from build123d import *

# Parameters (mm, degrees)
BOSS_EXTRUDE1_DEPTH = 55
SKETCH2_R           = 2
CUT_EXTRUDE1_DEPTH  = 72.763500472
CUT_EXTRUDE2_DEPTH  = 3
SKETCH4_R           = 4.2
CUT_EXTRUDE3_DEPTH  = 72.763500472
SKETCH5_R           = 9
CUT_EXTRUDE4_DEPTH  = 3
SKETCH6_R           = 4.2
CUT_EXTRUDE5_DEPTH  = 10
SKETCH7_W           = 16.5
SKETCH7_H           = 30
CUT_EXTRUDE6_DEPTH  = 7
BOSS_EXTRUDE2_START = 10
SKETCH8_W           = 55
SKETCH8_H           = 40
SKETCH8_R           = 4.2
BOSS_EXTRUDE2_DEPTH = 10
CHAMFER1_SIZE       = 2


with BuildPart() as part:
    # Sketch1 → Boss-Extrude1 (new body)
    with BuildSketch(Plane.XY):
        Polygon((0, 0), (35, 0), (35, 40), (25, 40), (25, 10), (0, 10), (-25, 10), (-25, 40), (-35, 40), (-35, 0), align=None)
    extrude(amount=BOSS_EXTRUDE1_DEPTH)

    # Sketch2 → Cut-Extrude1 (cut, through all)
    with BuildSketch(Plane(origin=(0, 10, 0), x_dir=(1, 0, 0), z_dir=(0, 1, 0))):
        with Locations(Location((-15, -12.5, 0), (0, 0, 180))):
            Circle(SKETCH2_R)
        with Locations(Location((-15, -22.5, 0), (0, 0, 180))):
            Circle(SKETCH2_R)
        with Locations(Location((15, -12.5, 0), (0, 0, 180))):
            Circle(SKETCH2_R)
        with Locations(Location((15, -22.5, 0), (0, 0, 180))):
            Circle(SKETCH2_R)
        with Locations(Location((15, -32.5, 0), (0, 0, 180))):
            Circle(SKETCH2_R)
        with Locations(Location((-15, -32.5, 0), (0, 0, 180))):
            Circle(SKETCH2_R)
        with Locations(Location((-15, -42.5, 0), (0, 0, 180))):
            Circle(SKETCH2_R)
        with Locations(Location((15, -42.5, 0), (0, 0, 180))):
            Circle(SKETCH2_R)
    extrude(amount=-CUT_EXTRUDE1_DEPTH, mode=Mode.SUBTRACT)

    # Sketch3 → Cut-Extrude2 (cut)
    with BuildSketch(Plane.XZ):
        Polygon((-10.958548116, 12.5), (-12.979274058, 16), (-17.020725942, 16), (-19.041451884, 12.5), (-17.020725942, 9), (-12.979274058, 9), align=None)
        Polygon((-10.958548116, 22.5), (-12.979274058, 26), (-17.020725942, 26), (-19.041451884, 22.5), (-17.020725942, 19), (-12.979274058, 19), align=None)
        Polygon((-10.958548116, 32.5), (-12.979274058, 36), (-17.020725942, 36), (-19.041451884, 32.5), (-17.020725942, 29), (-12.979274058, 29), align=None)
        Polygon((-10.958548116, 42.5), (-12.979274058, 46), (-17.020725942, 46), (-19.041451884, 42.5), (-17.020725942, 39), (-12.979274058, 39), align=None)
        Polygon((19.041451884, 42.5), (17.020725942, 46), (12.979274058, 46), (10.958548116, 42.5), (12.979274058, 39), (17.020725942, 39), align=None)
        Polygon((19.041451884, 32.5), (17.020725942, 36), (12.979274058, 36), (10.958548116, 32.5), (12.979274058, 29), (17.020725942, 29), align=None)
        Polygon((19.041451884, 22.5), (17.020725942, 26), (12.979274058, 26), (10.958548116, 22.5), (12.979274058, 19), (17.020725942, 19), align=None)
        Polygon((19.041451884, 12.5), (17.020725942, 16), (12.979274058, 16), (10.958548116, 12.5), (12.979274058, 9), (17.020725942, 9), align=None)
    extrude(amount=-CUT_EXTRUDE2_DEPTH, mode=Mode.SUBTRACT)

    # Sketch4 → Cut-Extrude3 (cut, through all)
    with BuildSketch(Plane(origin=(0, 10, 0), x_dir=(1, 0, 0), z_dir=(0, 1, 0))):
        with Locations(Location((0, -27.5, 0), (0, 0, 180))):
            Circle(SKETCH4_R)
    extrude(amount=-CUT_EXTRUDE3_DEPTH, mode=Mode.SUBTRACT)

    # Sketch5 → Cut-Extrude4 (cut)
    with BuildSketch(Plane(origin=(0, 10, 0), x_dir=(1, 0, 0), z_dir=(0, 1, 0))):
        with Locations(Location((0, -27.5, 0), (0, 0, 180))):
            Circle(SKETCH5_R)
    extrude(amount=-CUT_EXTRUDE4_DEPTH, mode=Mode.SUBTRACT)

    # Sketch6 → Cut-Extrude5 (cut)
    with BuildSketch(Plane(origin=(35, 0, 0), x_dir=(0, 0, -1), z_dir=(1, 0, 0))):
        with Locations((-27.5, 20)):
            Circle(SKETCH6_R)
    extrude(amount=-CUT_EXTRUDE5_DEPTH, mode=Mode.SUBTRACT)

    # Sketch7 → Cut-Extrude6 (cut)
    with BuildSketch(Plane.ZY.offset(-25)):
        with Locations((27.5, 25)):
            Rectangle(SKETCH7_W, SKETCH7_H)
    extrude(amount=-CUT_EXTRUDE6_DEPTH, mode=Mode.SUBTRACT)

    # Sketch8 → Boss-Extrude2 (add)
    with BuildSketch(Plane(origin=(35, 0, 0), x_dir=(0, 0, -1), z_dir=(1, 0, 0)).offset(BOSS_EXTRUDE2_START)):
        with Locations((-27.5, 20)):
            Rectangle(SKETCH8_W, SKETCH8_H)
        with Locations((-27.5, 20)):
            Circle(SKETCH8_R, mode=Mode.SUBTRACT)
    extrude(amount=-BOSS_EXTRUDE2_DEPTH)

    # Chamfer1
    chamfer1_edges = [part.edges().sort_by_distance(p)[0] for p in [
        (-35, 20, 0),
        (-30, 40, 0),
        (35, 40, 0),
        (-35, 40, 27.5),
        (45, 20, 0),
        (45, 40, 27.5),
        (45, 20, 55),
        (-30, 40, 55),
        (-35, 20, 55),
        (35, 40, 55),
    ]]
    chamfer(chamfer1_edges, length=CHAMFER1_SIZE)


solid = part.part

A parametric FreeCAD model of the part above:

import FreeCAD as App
import Part
import Sketcher
from FreeCAD import Vector
Q = App.Units.Quantity


def edges_at(feature, points):
    """Names of the edges that pass closest to the given points."""
    edges = feature.Shape.Edges
    near = lambda p: min(range(len(edges)), key=lambda i: edges[i].distToShape(Part.Vertex(*p))[0])
    return sorted({f"Edge{near(p) + 1}" for p in points})

doc = App.newDocument("Part")
body = doc.addObject("PartDesign::Body", "Body")

sketch1 = body.newObject("Sketcher::SketchObject", "Sketch")
sketch1.AttachmentSupport = (doc.getObject("XY_Plane"), [""])
sketch1.MapMode = "FlatFace"
sketch1.addGeometry(Part.LineSegment(Vector(35, 0, 0), Vector(35, 40, 0)), False)
sketch1.addGeometry(Part.LineSegment(Vector(35, 40, 0), Vector(25, 40, 0)), False)
sketch1.addGeometry(Part.LineSegment(Vector(25, 40, 0), Vector(25, 10, 0)), False)
sketch1.addGeometry(Part.LineSegment(Vector(25, 10, 0), Vector(-25, 10, 0)), False)
sketch1.addGeometry(Part.LineSegment(Vector(-25, 10, 0), Vector(-25, 40, 0)), False)
sketch1.addGeometry(Part.LineSegment(Vector(-25, 40, 0), Vector(-35, 40, 0)), False)
sketch1.addGeometry(Part.LineSegment(Vector(-35, 40, 0), Vector(-35, 0, 0)), False)
sketch1.addGeometry(Part.LineSegment(Vector(-35, 0, 0), Vector(35, 0, 0)), False)
sketch1.addConstraint(Sketcher.Constraint("Coincident", 0, 2, 1, 1))
sketch1.addConstraint(Sketcher.Constraint("Coincident", 1, 2, 2, 1))
sketch1.addConstraint(Sketcher.Constraint("Coincident", 2, 2, 3, 1))
sketch1.addConstraint(Sketcher.Constraint("Coincident", 3, 2, 4, 1))
sketch1.addConstraint(Sketcher.Constraint("Coincident", 4, 2, 5, 1))
sketch1.addConstraint(Sketcher.Constraint("Coincident", 5, 2, 6, 1))
sketch1.addConstraint(Sketcher.Constraint("Coincident", 6, 2, 7, 1))
sketch1.addConstraint(Sketcher.Constraint("Coincident", 7, 2, 0, 1))
sketch1.addConstraint(Sketcher.Constraint("Vertical", 0))
sketch1.addConstraint(Sketcher.Constraint("Horizontal", 1))
sketch1.addConstraint(Sketcher.Constraint("Vertical", 2))
sketch1.addConstraint(Sketcher.Constraint("Horizontal", 3))
sketch1.addConstraint(Sketcher.Constraint("Vertical", 4))
sketch1.addConstraint(Sketcher.Constraint("Horizontal", 5))
sketch1.addConstraint(Sketcher.Constraint("Vertical", 6))
sketch1.addConstraint(Sketcher.Constraint("Horizontal", 7))
sketch1.addConstraint(Sketcher.Constraint("Symmetric", 6, 2, 7, 2, -1, 1))
sketch1.addConstraint(Sketcher.Constraint("Symmetric", 1, 2, 4, 2, -2))
sketch1.addConstraint(Sketcher.Constraint("DistanceX", 1, 2, 1, 1, Q("10 mm")))
sketch1.addConstraint(Sketcher.Constraint("DistanceX", 3, 2, 3, 1, Q("50 mm")))
sketch1.addConstraint(Sketcher.Constraint("DistanceY", 0, 1, 0, 2, Q("40 mm")))
sketch1.addConstraint(Sketcher.Constraint("DistanceY", 2, 2, 2, 1, Q("30 mm")))
pad1 = body.newObject("PartDesign::Pad", "Pad")
pad1.Profile = sketch1
pad1.Length = 55

sketch2 = body.newObject("Sketcher::SketchObject", "Sketch001")
sketch2.AttachmentSupport = (doc.getObject("XZ_Plane"), [""])
sketch2.MapMode = "FlatFace"
sketch2.AttachmentOffset = App.Placement(Vector(0, 0, -10), App.Rotation())
sketch2.addGeometry(Part.Circle(Vector(-15, 12.5, 0), Vector(0, 0, 1), 2), False)
sketch2.addGeometry(Part.Circle(Vector(-15, 22.5, 0), Vector(0, 0, 1), 2), False)
sketch2.addGeometry(Part.Circle(Vector(15, 12.5, 0), Vector(0, 0, 1), 2), False)
sketch2.addGeometry(Part.Circle(Vector(15, 22.5, 0), Vector(0, 0, 1), 2), False)
sketch2.addGeometry(Part.Circle(Vector(15, 32.5, 0), Vector(0, 0, 1), 2), False)
sketch2.addGeometry(Part.Circle(Vector(-15, 32.5, 0), Vector(0, 0, 1), 2), False)
sketch2.addGeometry(Part.Circle(Vector(-15, 42.5, 0), Vector(0, 0, 1), 2), False)
sketch2.addGeometry(Part.Circle(Vector(15, 42.5, 0), Vector(0, 0, 1), 2), False)
sketch2.addConstraint(Sketcher.Constraint("Equal", 0, 1))
sketch2.addConstraint(Sketcher.Constraint("Equal", 1, 2))
sketch2.addConstraint(Sketcher.Constraint("Equal", 2, 3))
sketch2.addConstraint(Sketcher.Constraint("Equal", 3, 4))
sketch2.addConstraint(Sketcher.Constraint("Equal", 4, 5))
sketch2.addConstraint(Sketcher.Constraint("Equal", 5, 6))
sketch2.addConstraint(Sketcher.Constraint("Equal", 6, 7))
sketch2.addConstraint(Sketcher.Constraint("Symmetric", 0, 3, 2, 3, -2))
sketch2.addConstraint(Sketcher.Constraint("Symmetric", 1, 3, 3, 3, -2))
sketch2.addConstraint(Sketcher.Constraint("Symmetric", 4, 3, 5, 3, -2))
sketch2.addConstraint(Sketcher.Constraint("Symmetric", 6, 3, 7, 3, -2))
sketch2.addConstraint(Sketcher.Constraint("Vertical", 0, 3, 1, 3))
sketch2.addConstraint(Sketcher.Constraint("Vertical", 3, 3, 4, 3))
sketch2.addConstraint(Sketcher.Constraint("Vertical", 5, 3, 6, 3))
sketch2.addConstraint(Sketcher.Constraint("Diameter", 0, Q("4 mm")))
sketch2.addConstraint(Sketcher.Constraint("DistanceX", 0, 3, -1, 1, Q("15 mm")))
sketch2.addConstraint(Sketcher.Constraint("DistanceY", 0, 3, 1, 3, Q("10 mm")))
sketch2.addConstraint(Sketcher.Constraint("DistanceY", 3, 3, 4, 3, Q("10 mm")))
sketch2.addConstraint(Sketcher.Constraint("DistanceY", 5, 3, 6, 3, Q("10 mm")))
sketch2.addConstraint(Sketcher.Constraint("DistanceY", -1, 1, 0, 3, Q("12.5 mm")))
pocket1 = body.newObject("PartDesign::Pocket", "Pocket")
pocket1.Profile = sketch2
pocket1.Type = "ThroughAll"
pocket1.Reversed = True

sketch3 = body.newObject("Sketcher::SketchObject", "Sketch002")
sketch3.AttachmentSupport = (doc.getObject("XZ_Plane"), [""])
sketch3.MapMode = "FlatFace"
sketch3.addGeometry(Part.LineSegment(Vector(-11, 12.5, 0), Vector(-13, 16, 0)), False)
sketch3.addGeometry(Part.LineSegment(Vector(-13, 16, 0), Vector(-17, 16, 0)), False)
sketch3.addGeometry(Part.LineSegment(Vector(-17, 16, 0), Vector(-19, 12.5, 0)), False)
sketch3.addGeometry(Part.LineSegment(Vector(-19, 12.5, 0), Vector(-17, 9, 0)), False)
sketch3.addGeometry(Part.LineSegment(Vector(-17, 9, 0), Vector(-13, 9, 0)), False)
sketch3.addGeometry(Part.LineSegment(Vector(-13, 9, 0), Vector(-11, 12.5, 0)), False)
sketch3.addGeometry(Part.LineSegment(Vector(-11, 22.5, 0), Vector(-13, 26, 0)), False)
sketch3.addGeometry(Part.LineSegment(Vector(-13, 26, 0), Vector(-17, 26, 0)), False)
sketch3.addGeometry(Part.LineSegment(Vector(-17, 26, 0), Vector(-19, 22.5, 0)), False)
sketch3.addGeometry(Part.LineSegment(Vector(-19, 22.5, 0), Vector(-17, 19, 0)), False)
sketch3.addGeometry(Part.LineSegment(Vector(-17, 19, 0), Vector(-13, 19, 0)), False)
sketch3.addGeometry(Part.LineSegment(Vector(-13, 19, 0), Vector(-11, 22.5, 0)), False)
sketch3.addGeometry(Part.LineSegment(Vector(-11, 32.5, 0), Vector(-13, 36, 0)), False)
sketch3.addGeometry(Part.LineSegment(Vector(-13, 36, 0), Vector(-17, 36, 0)), False)
sketch3.addGeometry(Part.LineSegment(Vector(-17, 36, 0), Vector(-19, 32.5, 0)), False)
sketch3.addGeometry(Part.LineSegment(Vector(-19, 32.5, 0), Vector(-17, 29, 0)), False)
sketch3.addGeometry(Part.LineSegment(Vector(-17, 29, 0), Vector(-13, 29, 0)), False)
sketch3.addGeometry(Part.LineSegment(Vector(-13, 29, 0), Vector(-11, 32.5, 0)), False)
sketch3.addGeometry(Part.LineSegment(Vector(-11, 42.5, 0), Vector(-13, 46, 0)), False)
sketch3.addGeometry(Part.LineSegment(Vector(-13, 46, 0), Vector(-17, 46, 0)), False)
sketch3.addGeometry(Part.LineSegment(Vector(-17, 46, 0), Vector(-19, 42.5, 0)), False)
sketch3.addGeometry(Part.LineSegment(Vector(-19, 42.5, 0), Vector(-17, 39, 0)), False)
sketch3.addGeometry(Part.LineSegment(Vector(-17, 39, 0), Vector(-13, 39, 0)), False)
sketch3.addGeometry(Part.LineSegment(Vector(-13, 39, 0), Vector(-11, 42.5, 0)), False)
sketch3.addGeometry(Part.LineSegment(Vector(19, 42.5, 0), Vector(17, 46, 0)), False)
sketch3.addGeometry(Part.LineSegment(Vector(17, 46, 0), Vector(13, 46, 0)), False)
sketch3.addGeometry(Part.LineSegment(Vector(13, 46, 0), Vector(11, 42.5, 0)), False)
sketch3.addGeometry(Part.LineSegment(Vector(11, 42.5, 0), Vector(13, 39, 0)), False)
sketch3.addGeometry(Part.LineSegment(Vector(13, 39, 0), Vector(17, 39, 0)), False)
sketch3.addGeometry(Part.LineSegment(Vector(17, 39, 0), Vector(19, 42.5, 0)), False)
sketch3.addGeometry(Part.LineSegment(Vector(19, 32.5, 0), Vector(17, 36, 0)), False)
sketch3.addGeometry(Part.LineSegment(Vector(17, 36, 0), Vector(13, 36, 0)), False)
sketch3.addGeometry(Part.LineSegment(Vector(13, 36, 0), Vector(11, 32.5, 0)), False)
sketch3.addGeometry(Part.LineSegment(Vector(11, 32.5, 0), Vector(13, 29, 0)), False)
sketch3.addGeometry(Part.LineSegment(Vector(13, 29, 0), Vector(17, 29, 0)), False)
sketch3.addGeometry(Part.LineSegment(Vector(17, 29, 0), Vector(19, 32.5, 0)), False)
sketch3.addGeometry(Part.LineSegment(Vector(19, 22.5, 0), Vector(17, 26, 0)), False)
sketch3.addGeometry(Part.LineSegment(Vector(17, 26, 0), Vector(13, 26, 0)), False)
sketch3.addGeometry(Part.LineSegment(Vector(13, 26, 0), Vector(11, 22.5, 0)), False)
sketch3.addGeometry(Part.LineSegment(Vector(11, 22.5, 0), Vector(13, 19, 0)), False)
sketch3.addGeometry(Part.LineSegment(Vector(13, 19, 0), Vector(17, 19, 0)), False)
sketch3.addGeometry(Part.LineSegment(Vector(17, 19, 0), Vector(19, 22.5, 0)), False)
sketch3.addGeometry(Part.LineSegment(Vector(19, 12.5, 0), Vector(17, 16, 0)), False)
sketch3.addGeometry(Part.LineSegment(Vector(17, 16, 0), Vector(13, 16, 0)), False)
sketch3.addGeometry(Part.LineSegment(Vector(13, 16, 0), Vector(11, 12.5, 0)), False)
sketch3.addGeometry(Part.LineSegment(Vector(11, 12.5, 0), Vector(13, 9, 0)), False)
sketch3.addGeometry(Part.LineSegment(Vector(13, 9, 0), Vector(17, 9, 0)), False)
sketch3.addGeometry(Part.LineSegment(Vector(17, 9, 0), Vector(19, 12.5, 0)), False)
sketch3.addConstraint(Sketcher.Constraint("Coincident", 0, 2, 1, 1))
sketch3.addConstraint(Sketcher.Constraint("Coincident", 1, 2, 2, 1))
sketch3.addConstraint(Sketcher.Constraint("Coincident", 2, 2, 3, 1))
sketch3.addConstraint(Sketcher.Constraint("Coincident", 3, 2, 4, 1))
sketch3.addConstraint(Sketcher.Constraint("Coincident", 4, 2, 5, 1))
sketch3.addConstraint(Sketcher.Constraint("Coincident", 5, 2, 0, 1))
sketch3.addConstraint(Sketcher.Constraint("Coincident", 6, 2, 7, 1))
sketch3.addConstraint(Sketcher.Constraint("Coincident", 7, 2, 8, 1))
sketch3.addConstraint(Sketcher.Constraint("Coincident", 8, 2, 9, 1))
sketch3.addConstraint(Sketcher.Constraint("Coincident", 9, 2, 10, 1))
sketch3.addConstraint(Sketcher.Constraint("Coincident", 10, 2, 11, 1))
sketch3.addConstraint(Sketcher.Constraint("Coincident", 11, 2, 6, 1))
sketch3.addConstraint(Sketcher.Constraint("Coincident", 12, 2, 13, 1))
sketch3.addConstraint(Sketcher.Constraint("Coincident", 13, 2, 14, 1))
sketch3.addConstraint(Sketcher.Constraint("Coincident", 14, 2, 15, 1))
sketch3.addConstraint(Sketcher.Constraint("Coincident", 15, 2, 16, 1))
sketch3.addConstraint(Sketcher.Constraint("Coincident", 16, 2, 17, 1))
sketch3.addConstraint(Sketcher.Constraint("Coincident", 17, 2, 12, 1))
sketch3.addConstraint(Sketcher.Constraint("Coincident", 18, 2, 19, 1))
sketch3.addConstraint(Sketcher.Constraint("Coincident", 19, 2, 20, 1))
sketch3.addConstraint(Sketcher.Constraint("Coincident", 20, 2, 21, 1))
sketch3.addConstraint(Sketcher.Constraint("Coincident", 21, 2, 22, 1))
sketch3.addConstraint(Sketcher.Constraint("Coincident", 22, 2, 23, 1))
sketch3.addConstraint(Sketcher.Constraint("Coincident", 23, 2, 18, 1))
sketch3.addConstraint(Sketcher.Constraint("Coincident", 24, 2, 25, 1))
sketch3.addConstraint(Sketcher.Constraint("Coincident", 25, 2, 26, 1))
sketch3.addConstraint(Sketcher.Constraint("Coincident", 26, 2, 27, 1))
sketch3.addConstraint(Sketcher.Constraint("Coincident", 27, 2, 28, 1))
sketch3.addConstraint(Sketcher.Constraint("Coincident", 28, 2, 29, 1))
sketch3.addConstraint(Sketcher.Constraint("Coincident", 29, 2, 24, 1))
sketch3.addConstraint(Sketcher.Constraint("Coincident", 30, 2, 31, 1))
sketch3.addConstraint(Sketcher.Constraint("Coincident", 31, 2, 32, 1))
sketch3.addConstraint(Sketcher.Constraint("Coincident", 32, 2, 33, 1))
sketch3.addConstraint(Sketcher.Constraint("Coincident", 33, 2, 34, 1))
sketch3.addConstraint(Sketcher.Constraint("Coincident", 34, 2, 35, 1))
sketch3.addConstraint(Sketcher.Constraint("Coincident", 35, 2, 30, 1))
sketch3.addConstraint(Sketcher.Constraint("Coincident", 36, 2, 37, 1))
sketch3.addConstraint(Sketcher.Constraint("Coincident", 37, 2, 38, 1))
sketch3.addConstraint(Sketcher.Constraint("Coincident", 38, 2, 39, 1))
sketch3.addConstraint(Sketcher.Constraint("Coincident", 39, 2, 40, 1))
sketch3.addConstraint(Sketcher.Constraint("Coincident", 40, 2, 41, 1))
sketch3.addConstraint(Sketcher.Constraint("Coincident", 41, 2, 36, 1))
sketch3.addConstraint(Sketcher.Constraint("Coincident", 42, 2, 43, 1))
sketch3.addConstraint(Sketcher.Constraint("Coincident", 43, 2, 44, 1))
sketch3.addConstraint(Sketcher.Constraint("Coincident", 44, 2, 45, 1))
sketch3.addConstraint(Sketcher.Constraint("Coincident", 45, 2, 46, 1))
sketch3.addConstraint(Sketcher.Constraint("Coincident", 46, 2, 47, 1))
sketch3.addConstraint(Sketcher.Constraint("Coincident", 47, 2, 42, 1))
sketch3.addConstraint(Sketcher.Constraint("Horizontal", 1))
sketch3.addConstraint(Sketcher.Constraint("Horizontal", 4))
sketch3.addConstraint(Sketcher.Constraint("Horizontal", 7))
sketch3.addConstraint(Sketcher.Constraint("Horizontal", 10))
sketch3.addConstraint(Sketcher.Constraint("Horizontal", 13))
sketch3.addConstraint(Sketcher.Constraint("Horizontal", 16))
sketch3.addConstraint(Sketcher.Constraint("Horizontal", 19))
sketch3.addConstraint(Sketcher.Constraint("Horizontal", 22))
sketch3.addConstraint(Sketcher.Constraint("Horizontal", 25))
sketch3.addConstraint(Sketcher.Constraint("Horizontal", 28))
sketch3.addConstraint(Sketcher.Constraint("Horizontal", 31))
sketch3.addConstraint(Sketcher.Constraint("Horizontal", 34))
sketch3.addConstraint(Sketcher.Constraint("Horizontal", 37))
sketch3.addConstraint(Sketcher.Constraint("Horizontal", 40))
sketch3.addConstraint(Sketcher.Constraint("Horizontal", 43))
sketch3.addConstraint(Sketcher.Constraint("Horizontal", 46))
sketch3.addConstraint(Sketcher.Constraint("Symmetric", 19, 2, 24, 2, -2))
sketch3.addConstraint(Sketcher.Constraint("Symmetric", 23, 2, 26, 2, -2))
sketch3.addConstraint(Sketcher.Constraint("Symmetric", 22, 2, 27, 2, -2))
sketch3.addConstraint(Sketcher.Constraint("Symmetric", 20, 2, 29, 2, -2))
sketch3.addConstraint(Sketcher.Constraint("Symmetric", 13, 2, 30, 2, -2))
sketch3.addConstraint(Sketcher.Constraint("Symmetric", 17, 2, 32, 2, -2))
sketch3.addConstraint(Sketcher.Constraint("Symmetric", 16, 2, 33, 2, -2))
sketch3.addConstraint(Sketcher.Constraint("Symmetric", 14, 2, 35, 2, -2))
sketch3.addConstraint(Sketcher.Constraint("Symmetric", 7, 2, 36, 2, -2))
sketch3.addConstraint(Sketcher.Constraint("Symmetric", 11, 2, 38, 2, -2))
sketch3.addConstraint(Sketcher.Constraint("Symmetric", 10, 2, 39, 2, -2))
sketch3.addConstraint(Sketcher.Constraint("Symmetric", 8, 2, 41, 2, -2))
sketch3.addConstraint(Sketcher.Constraint("Symmetric", 1, 2, 42, 2, -2))
sketch3.addConstraint(Sketcher.Constraint("Symmetric", 5, 2, 44, 2, -2))
sketch3.addConstraint(Sketcher.Constraint("Symmetric", 4, 2, 45, 2, -2))
sketch3.addConstraint(Sketcher.Constraint("Symmetric", 2, 2, 47, 2, -2))
sketch3.addConstraint(Sketcher.Constraint("Parallel", 0, 3))
sketch3.addConstraint(Sketcher.Constraint("Parallel", 2, 5))
sketch3.addConstraint(Sketcher.Constraint("Parallel", 3, 6))
sketch3.addConstraint(Sketcher.Constraint("Parallel", 5, 8))
sketch3.addConstraint(Sketcher.Constraint("Parallel", 6, 9))
sketch3.addConstraint(Sketcher.Constraint("Parallel", 8, 11))
sketch3.addConstraint(Sketcher.Constraint("Parallel", 9, 12))
sketch3.addConstraint(Sketcher.Constraint("Parallel", 11, 14))
sketch3.addConstraint(Sketcher.Constraint("Parallel", 12, 15))
sketch3.addConstraint(Sketcher.Constraint("Parallel", 14, 17))
sketch3.addConstraint(Sketcher.Constraint("Parallel", 15, 18))
sketch3.addConstraint(Sketcher.Constraint("Parallel", 17, 20))
sketch3.addConstraint(Sketcher.Constraint("Parallel", 18, 21))
sketch3.addConstraint(Sketcher.Constraint("Parallel", 20, 23))
sketch3.addConstraint(Sketcher.Constraint("Parallel", 21, 24))
sketch3.addConstraint(Sketcher.Constraint("Parallel", 23, 26))
sketch3.addConstraint(Sketcher.Constraint("Parallel", 26, 29))
sketch3.addConstraint(Sketcher.Constraint("Parallel", 29, 32))
sketch3.addConstraint(Sketcher.Constraint("Parallel", 32, 35))
sketch3.addConstraint(Sketcher.Constraint("Parallel", 35, 38))
sketch3.addConstraint(Sketcher.Constraint("Parallel", 38, 41))
sketch3.addConstraint(Sketcher.Constraint("Parallel", 41, 44))
sketch3.addConstraint(Sketcher.Constraint("Parallel", 44, 47))
sketch3.addConstraint(Sketcher.Constraint("Horizontal", 2, 2, 5, 2))
sketch3.addConstraint(Sketcher.Constraint("Horizontal", 8, 2, 11, 2))
sketch3.addConstraint(Sketcher.Constraint("Horizontal", 14, 2, 17, 2))
sketch3.addConstraint(Sketcher.Constraint("Horizontal", 20, 2, 23, 2))
sketch3.addConstraint(Sketcher.Constraint("Vertical", 1, 2, 3, 2))
sketch3.addConstraint(Sketcher.Constraint("Vertical", 4, 2, 6, 2))
sketch3.addConstraint(Sketcher.Constraint("Vertical", 3, 2, 7, 2))
sketch3.addConstraint(Sketcher.Constraint("Vertical", 2, 2, 8, 2))
sketch3.addConstraint(Sketcher.Constraint("Vertical", 7, 2, 9, 2))
sketch3.addConstraint(Sketcher.Constraint("Vertical", 10, 2, 12, 2))
sketch3.addConstraint(Sketcher.Constraint("Vertical", 9, 2, 13, 2))
sketch3.addConstraint(Sketcher.Constraint("Vertical", 8, 2, 14, 2))
sketch3.addConstraint(Sketcher.Constraint("Vertical", 13, 2, 15, 2))
sketch3.addConstraint(Sketcher.Constraint("Vertical", 16, 2, 18, 2))
sketch3.addConstraint(Sketcher.Constraint("Vertical", 15, 2, 19, 2))
sketch3.addConstraint(Sketcher.Constraint("Vertical", 14, 2, 20, 2))
sketch3.addConstraint(Sketcher.Constraint("Vertical", 19, 2, 21, 2))
sketch3.addConstraint(Sketcher.Constraint("Angle", 0, Q("120 deg")))
sketch3.addConstraint(Sketcher.Constraint("DistanceY", -1, 1, 0, 2, Q("16 mm")))
sketch3.addConstraint(Sketcher.Constraint("DistanceY", -1, 1, 3, 2, Q("9 mm")))
sketch3.addConstraint(Sketcher.Constraint("DistanceY", -1, 1, 6, 2, Q("26 mm")))
sketch3.addConstraint(Sketcher.Constraint("DistanceY", -1, 1, 12, 2, Q("36 mm")))
sketch3.addConstraint(Sketcher.Constraint("DistanceY", -1, 1, 18, 2, Q("46 mm")))
sketch3.addConstraint(Sketcher.Constraint("DistanceX", 18, 2, 24, 2, Q("30 mm")))
sketch3.addConstraint(Sketcher.Constraint("DistanceX", 1, 2, 1, 1, Q("4.041452 mm")))
pocket2 = body.newObject("PartDesign::Pocket", "Pocket001")
pocket2.Profile = sketch3
pocket2.Length = 3

sketch4 = body.newObject("Sketcher::SketchObject", "Sketch003")
sketch4.AttachmentSupport = (doc.getObject("XZ_Plane"), [""])
sketch4.MapMode = "FlatFace"
sketch4.AttachmentOffset = App.Placement(Vector(0, 0, -10), App.Rotation())
sketch4.addGeometry(Part.Circle(Vector(0, 27.5, 0), Vector(0, 0, 1), 4.2), False)
sketch4.addConstraint(Sketcher.Constraint("PointOnObject", 0, 3, -2))
sketch4.addConstraint(Sketcher.Constraint("Diameter", 0, Q("8.4 mm")))
sketch4.addConstraint(Sketcher.Constraint("DistanceY", -1, 1, 0, 3, Q("27.5 mm")))
pocket3 = body.newObject("PartDesign::Pocket", "Pocket002")
pocket3.Profile = sketch4
pocket3.Type = "ThroughAll"
pocket3.Reversed = True

sketch5 = body.newObject("Sketcher::SketchObject", "Sketch004")
sketch5.AttachmentSupport = (doc.getObject("XZ_Plane"), [""])
sketch5.MapMode = "FlatFace"
sketch5.AttachmentOffset = App.Placement(Vector(0, 0, -10), App.Rotation())
sketch5.addGeometry(Part.Circle(Vector(0, 28, 0), Vector(0, 0, 1), 9), False)
sketch5.addConstraint(Sketcher.Constraint("PointOnObject", 0, 3, -2))
sketch5.addConstraint(Sketcher.Constraint("Diameter", 0, Q("18 mm")))
sketch5.addConstraint(Sketcher.Constraint("DistanceY", -1, 1, 0, 3, Q("27.5 mm")))
pocket4 = body.newObject("PartDesign::Pocket", "Pocket003")
pocket4.Profile = sketch5
pocket4.Length = 3
pocket4.Reversed = True

sketch6 = body.newObject("Sketcher::SketchObject", "Sketch005")
sketch6.AttachmentSupport = (doc.getObject("YZ_Plane"), [""])
sketch6.MapMode = "FlatFace"
sketch6.AttachmentOffset = App.Placement(Vector(0, 0, 35), App.Rotation())
sketch6.addGeometry(Part.Circle(Vector(20, 27.5, 0), Vector(0, 0, 1), 4.2), False)
sketch6.addConstraint(Sketcher.Constraint("Diameter", 0, Q("8.4 mm")))
sketch6.addConstraint(Sketcher.Constraint("DistanceX", -1, 1, 0, 3, Q("20 mm")))
sketch6.addConstraint(Sketcher.Constraint("DistanceY", -1, 1, 0, 3, Q("27.5 mm")))
pocket5 = body.newObject("PartDesign::Pocket", "Pocket004")
pocket5.Profile = sketch6
pocket5.Length = 10

sketch7 = body.newObject("Sketcher::SketchObject", "Sketch006")
sketch7.AttachmentSupport = (doc.getObject("YZ_Plane"), [""])
sketch7.MapMode = "FlatFace"
sketch7.AttachmentOffset = App.Placement(Vector(0, 0, 25), App.Rotation())
sketch7.addGeometry(Part.LineSegment(Vector(40, 19, 0), Vector(10, 19, 0)), False)
sketch7.addGeometry(Part.LineSegment(Vector(10, 19, 0), Vector(10, 36, 0)), False)
sketch7.addGeometry(Part.LineSegment(Vector(10, 36, 0), Vector(40, 36, 0)), False)
sketch7.addGeometry(Part.LineSegment(Vector(40, 36, 0), Vector(40, 19, 0)), False)
sketch7.addConstraint(Sketcher.Constraint("Coincident", 0, 2, 1, 1))
sketch7.addConstraint(Sketcher.Constraint("Coincident", 1, 2, 2, 1))
sketch7.addConstraint(Sketcher.Constraint("Coincident", 2, 2, 3, 1))
sketch7.addConstraint(Sketcher.Constraint("Coincident", 3, 2, 0, 1))
sketch7.addConstraint(Sketcher.Constraint("Horizontal", 0))
sketch7.addConstraint(Sketcher.Constraint("Vertical", 1))
sketch7.addConstraint(Sketcher.Constraint("Horizontal", 2))
sketch7.addConstraint(Sketcher.Constraint("Vertical", 3))
sketch7.addConstraint(Sketcher.Constraint("DistanceX", 0, 2, 0, 1, Q("30 mm")))
sketch7.addConstraint(Sketcher.Constraint("DistanceY", 1, 1, 1, 2, Q("16.5 mm")))
sketch7.addConstraint(Sketcher.Constraint("DistanceX", -1, 1, 0, 2, Q("10 mm")))
sketch7.addConstraint(Sketcher.Constraint("DistanceY", -1, 1, 0, 2, Q("19.25 mm")))
pocket6 = body.newObject("PartDesign::Pocket", "Pocket005")
pocket6.Profile = sketch7
pocket6.Length = 7
pocket6.Reversed = True

sketch8 = body.newObject("Sketcher::SketchObject", "Sketch007")
sketch8.AttachmentSupport = (doc.getObject("YZ_Plane"), [""])
sketch8.MapMode = "FlatFace"
sketch8.AttachmentOffset = App.Placement(Vector(0, 0, 45), App.Rotation())
sketch8.addGeometry(Part.LineSegment(Vector(40, 55, 0), Vector(0, 55, 0)), False)
sketch8.addGeometry(Part.LineSegment(Vector(0, 55, 0), Vector(0, 0, 0)), False)
sketch8.addGeometry(Part.LineSegment(Vector(0, 0, 0), Vector(40, 0, 0)), False)
sketch8.addGeometry(Part.LineSegment(Vector(40, 0, 0), Vector(40, 55, 0)), False)
sketch8.addGeometry(Part.Circle(Vector(20, 27.5, 0), Vector(0, 0, 1), 4.2), False)
sketch8.addConstraint(Sketcher.Constraint("Coincident", 0, 2, 1, 1))
sketch8.addConstraint(Sketcher.Constraint("Coincident", 1, 2, 2, 1))
sketch8.addConstraint(Sketcher.Constraint("Coincident", 2, 2, 3, 1))
sketch8.addConstraint(Sketcher.Constraint("Coincident", 3, 2, 0, 1))
sketch8.addConstraint(Sketcher.Constraint("Horizontal", 0))
sketch8.addConstraint(Sketcher.Constraint("Vertical", 1))
sketch8.addConstraint(Sketcher.Constraint("Horizontal", 2))
sketch8.addConstraint(Sketcher.Constraint("Vertical", 3))
sketch8.addConstraint(Sketcher.Constraint("Coincident", 1, 2, -1, 1))
sketch8.addConstraint(Sketcher.Constraint("Diameter", 4, Q("8.4 mm")))
sketch8.addConstraint(Sketcher.Constraint("DistanceX", 0, 2, 0, 1, Q("40 mm")))
sketch8.addConstraint(Sketcher.Constraint("DistanceY", 1, 2, 1, 1, Q("55 mm")))
sketch8.addConstraint(Sketcher.Constraint("DistanceX", -1, 1, 4, 3, Q("20 mm")))
sketch8.addConstraint(Sketcher.Constraint("DistanceY", -1, 1, 4, 3, Q("27.5 mm")))
pad2 = body.newObject("PartDesign::Pad", "Pad001")
pad2.Profile = sketch8
pad2.Length = 10
pad2.Reversed = True
doc.recompute()

chamfer = body.newObject("PartDesign::Chamfer", "Chamfer")
chamfer.Base = (pad2, edges_at(pad2, [
    (-35, 20, 0),
    (-30, 40, 0),
    (35, 40, 0),
    (-35, 40, 27.5),
    (45, 20, 0),
    (45, 40, 27.5),
    (45, 20, 55),
    (-30, 40, 55),
    (-35, 20, 55),
    (35, 40, 55),
]))
chamfer.Size = 2

doc.recompute()
